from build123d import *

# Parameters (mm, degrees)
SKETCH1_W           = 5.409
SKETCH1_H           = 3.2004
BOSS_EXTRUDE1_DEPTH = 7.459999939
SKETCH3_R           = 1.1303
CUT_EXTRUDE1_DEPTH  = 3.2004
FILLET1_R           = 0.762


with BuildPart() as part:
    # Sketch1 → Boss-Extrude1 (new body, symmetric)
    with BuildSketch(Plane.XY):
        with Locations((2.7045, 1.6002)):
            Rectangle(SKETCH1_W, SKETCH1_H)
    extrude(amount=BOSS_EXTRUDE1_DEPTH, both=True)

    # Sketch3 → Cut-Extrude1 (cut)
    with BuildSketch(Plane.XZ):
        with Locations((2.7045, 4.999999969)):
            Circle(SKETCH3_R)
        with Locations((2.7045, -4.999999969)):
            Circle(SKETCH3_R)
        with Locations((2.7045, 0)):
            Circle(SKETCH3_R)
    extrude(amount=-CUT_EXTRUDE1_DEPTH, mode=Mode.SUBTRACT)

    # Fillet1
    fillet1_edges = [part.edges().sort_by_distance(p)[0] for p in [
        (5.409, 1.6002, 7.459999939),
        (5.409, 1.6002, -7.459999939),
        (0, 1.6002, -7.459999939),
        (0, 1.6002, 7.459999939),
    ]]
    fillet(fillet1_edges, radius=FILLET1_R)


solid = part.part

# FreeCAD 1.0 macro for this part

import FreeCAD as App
import Part
import Sketcher
Q = App.Units.Quantity


def edges_at(feature, points):
    """Names of the edges that pass closest to the given points."""
    edges = feature.Shape.Edges
    near = lambda p: min(range(len(edges)), key=lambda i: edges[i].distToShape(Part.Vertex(*p))[0])
    return sorted({f"Edge{near(p) + 1}" for p in points})

doc = App.newDocument("Part")
body = doc.addObject("PartDesign::Body", "Body")

# Sketch on XY plane
sketch1 = doc.addObject("Sketcher::SketchObject", "Sketch")
body.addObject(sketch1)
sketch1.AttachmentSupport = (doc.XY_Plane, [""])
sketch1.MapMode = "FlatFace"
sketch1.addGeometry(Part.LineSegment(App.Vector(0, 3.2, 0), App.Vector(0, 0, 0)), False)
sketch1.addGeometry(Part.LineSegment(App.Vector(0, 0, 0), App.Vector(5.4, 0, 0)), False)
sketch1.addGeometry(Part.LineSegment(App.Vector(5.4, 0, 0), App.Vector(5.4, 3.2, 0)), False)
sketch1.addGeometry(Part.LineSegment(App.Vector(5.4, 3.2, 0), App.Vector(0, 3.2, 0)), False)
sketch1.addConstraint(Sketcher.Constraint("Coincident", 0, 2, 1, 1))
sketch1.addConstraint(Sketcher.Constraint("Coincident", 1, 2, 2, 1))
sketch1.addConstraint(Sketcher.Constraint("Coincident", 2, 2, 3, 1))
sketch1.addConstraint(Sketcher.Constraint("Coincident", 3, 2, 0, 1))
sketch1.addConstraint(Sketcher.Constraint("Vertical", 0))
sketch1.addConstraint(Sketcher.Constraint("Horizontal", 1))
sketch1.addConstraint(Sketcher.Constraint("Vertical", 2))
sketch1.addConstraint(Sketcher.Constraint("Horizontal", 3))
sketch1.addConstraint(Sketcher.Constraint("Coincident", 0, 2, -1, 1))
sketch1.addConstraint(Sketcher.Constraint("DistanceY", 0, 2, 0, 1, Q("0.126 in")))
sketch1.addConstraint(Sketcher.Constraint("DistanceX", 1, 1, 1, 2, Q("5.409 mm")))
pad1 = doc.addObject("PartDesign::Pad", "Pad")
body.addObject(pad1)
pad1.Profile = sketch1
pad1.Length = 14.92
pad1.Midplane = True

# Sketch on XZ plane
sketch2 = doc.addObject("Sketcher::SketchObject", "Sketch001")
body.addObject(sketch2)
sketch2.AttachmentSupport = (doc.XZ_Plane, [""])
sketch2.MapMode = "FlatFace"
sketch2.addGeometry(Part.Circle(App.Vector(2.7, 5, 0), App.Vector(0, 0, 1), 1.1), False)
sketch2.addGeometry(Part.Circle(App.Vector(2.7, -5, 0), App.Vector(0, 0, 1), 1.1), False)
sketch2.addGeometry(Part.Circle(App.Vector(2.7, 0, 0), App.Vector(0, 0, 1), 1.1), False)
sketch2.addConstraint(Sketcher.Constraint("Equal", 0, 1))
sketch2.addConstraint(Sketcher.Constraint("Equal", 1, 2))
sketch2.addConstraint(Sketcher.Constraint("Symmetric", 0, 3, 1, 3, -1))
sketch2.addConstraint(Sketcher.Constraint("PointOnObject", 2, 3, -1))
sketch2.addConstraint(Sketcher.Constraint("Vertical", 1, 3, 2, 3))
sketch2.addConstraint(Sketcher.Constraint("Diameter", 0, Q("0.089 in")))
sketch2.addConstraint(Sketcher.Constraint("DistanceX", -1, 1, 0, 3, Q("2.7045 mm")))
sketch2.addConstraint(Sketcher.Constraint("DistanceY", -1, 1, 0, 3, Q("5 mm")))
pocket1 = doc.addObject("PartDesign::Pocket", "Pocket")
body.addObject(pocket1)
pocket1.Profile = sketch2
pocket1.Length = Q("0.126 in")
doc.recompute()

fillet = doc.addObject("PartDesign::Fillet", "Fillet")
body.addObject(fillet)
fillet.Base = (pocket1, edges_at(pocket1, [
    (5.409, 1.6, 7.46),
    (5.409, 1.6, -7.46),
    (0, 1.6, -7.46),
    (0, 1.6, 7.46),
]))
fillet.Radius = Q("0.03 in")

doc.recompute()
